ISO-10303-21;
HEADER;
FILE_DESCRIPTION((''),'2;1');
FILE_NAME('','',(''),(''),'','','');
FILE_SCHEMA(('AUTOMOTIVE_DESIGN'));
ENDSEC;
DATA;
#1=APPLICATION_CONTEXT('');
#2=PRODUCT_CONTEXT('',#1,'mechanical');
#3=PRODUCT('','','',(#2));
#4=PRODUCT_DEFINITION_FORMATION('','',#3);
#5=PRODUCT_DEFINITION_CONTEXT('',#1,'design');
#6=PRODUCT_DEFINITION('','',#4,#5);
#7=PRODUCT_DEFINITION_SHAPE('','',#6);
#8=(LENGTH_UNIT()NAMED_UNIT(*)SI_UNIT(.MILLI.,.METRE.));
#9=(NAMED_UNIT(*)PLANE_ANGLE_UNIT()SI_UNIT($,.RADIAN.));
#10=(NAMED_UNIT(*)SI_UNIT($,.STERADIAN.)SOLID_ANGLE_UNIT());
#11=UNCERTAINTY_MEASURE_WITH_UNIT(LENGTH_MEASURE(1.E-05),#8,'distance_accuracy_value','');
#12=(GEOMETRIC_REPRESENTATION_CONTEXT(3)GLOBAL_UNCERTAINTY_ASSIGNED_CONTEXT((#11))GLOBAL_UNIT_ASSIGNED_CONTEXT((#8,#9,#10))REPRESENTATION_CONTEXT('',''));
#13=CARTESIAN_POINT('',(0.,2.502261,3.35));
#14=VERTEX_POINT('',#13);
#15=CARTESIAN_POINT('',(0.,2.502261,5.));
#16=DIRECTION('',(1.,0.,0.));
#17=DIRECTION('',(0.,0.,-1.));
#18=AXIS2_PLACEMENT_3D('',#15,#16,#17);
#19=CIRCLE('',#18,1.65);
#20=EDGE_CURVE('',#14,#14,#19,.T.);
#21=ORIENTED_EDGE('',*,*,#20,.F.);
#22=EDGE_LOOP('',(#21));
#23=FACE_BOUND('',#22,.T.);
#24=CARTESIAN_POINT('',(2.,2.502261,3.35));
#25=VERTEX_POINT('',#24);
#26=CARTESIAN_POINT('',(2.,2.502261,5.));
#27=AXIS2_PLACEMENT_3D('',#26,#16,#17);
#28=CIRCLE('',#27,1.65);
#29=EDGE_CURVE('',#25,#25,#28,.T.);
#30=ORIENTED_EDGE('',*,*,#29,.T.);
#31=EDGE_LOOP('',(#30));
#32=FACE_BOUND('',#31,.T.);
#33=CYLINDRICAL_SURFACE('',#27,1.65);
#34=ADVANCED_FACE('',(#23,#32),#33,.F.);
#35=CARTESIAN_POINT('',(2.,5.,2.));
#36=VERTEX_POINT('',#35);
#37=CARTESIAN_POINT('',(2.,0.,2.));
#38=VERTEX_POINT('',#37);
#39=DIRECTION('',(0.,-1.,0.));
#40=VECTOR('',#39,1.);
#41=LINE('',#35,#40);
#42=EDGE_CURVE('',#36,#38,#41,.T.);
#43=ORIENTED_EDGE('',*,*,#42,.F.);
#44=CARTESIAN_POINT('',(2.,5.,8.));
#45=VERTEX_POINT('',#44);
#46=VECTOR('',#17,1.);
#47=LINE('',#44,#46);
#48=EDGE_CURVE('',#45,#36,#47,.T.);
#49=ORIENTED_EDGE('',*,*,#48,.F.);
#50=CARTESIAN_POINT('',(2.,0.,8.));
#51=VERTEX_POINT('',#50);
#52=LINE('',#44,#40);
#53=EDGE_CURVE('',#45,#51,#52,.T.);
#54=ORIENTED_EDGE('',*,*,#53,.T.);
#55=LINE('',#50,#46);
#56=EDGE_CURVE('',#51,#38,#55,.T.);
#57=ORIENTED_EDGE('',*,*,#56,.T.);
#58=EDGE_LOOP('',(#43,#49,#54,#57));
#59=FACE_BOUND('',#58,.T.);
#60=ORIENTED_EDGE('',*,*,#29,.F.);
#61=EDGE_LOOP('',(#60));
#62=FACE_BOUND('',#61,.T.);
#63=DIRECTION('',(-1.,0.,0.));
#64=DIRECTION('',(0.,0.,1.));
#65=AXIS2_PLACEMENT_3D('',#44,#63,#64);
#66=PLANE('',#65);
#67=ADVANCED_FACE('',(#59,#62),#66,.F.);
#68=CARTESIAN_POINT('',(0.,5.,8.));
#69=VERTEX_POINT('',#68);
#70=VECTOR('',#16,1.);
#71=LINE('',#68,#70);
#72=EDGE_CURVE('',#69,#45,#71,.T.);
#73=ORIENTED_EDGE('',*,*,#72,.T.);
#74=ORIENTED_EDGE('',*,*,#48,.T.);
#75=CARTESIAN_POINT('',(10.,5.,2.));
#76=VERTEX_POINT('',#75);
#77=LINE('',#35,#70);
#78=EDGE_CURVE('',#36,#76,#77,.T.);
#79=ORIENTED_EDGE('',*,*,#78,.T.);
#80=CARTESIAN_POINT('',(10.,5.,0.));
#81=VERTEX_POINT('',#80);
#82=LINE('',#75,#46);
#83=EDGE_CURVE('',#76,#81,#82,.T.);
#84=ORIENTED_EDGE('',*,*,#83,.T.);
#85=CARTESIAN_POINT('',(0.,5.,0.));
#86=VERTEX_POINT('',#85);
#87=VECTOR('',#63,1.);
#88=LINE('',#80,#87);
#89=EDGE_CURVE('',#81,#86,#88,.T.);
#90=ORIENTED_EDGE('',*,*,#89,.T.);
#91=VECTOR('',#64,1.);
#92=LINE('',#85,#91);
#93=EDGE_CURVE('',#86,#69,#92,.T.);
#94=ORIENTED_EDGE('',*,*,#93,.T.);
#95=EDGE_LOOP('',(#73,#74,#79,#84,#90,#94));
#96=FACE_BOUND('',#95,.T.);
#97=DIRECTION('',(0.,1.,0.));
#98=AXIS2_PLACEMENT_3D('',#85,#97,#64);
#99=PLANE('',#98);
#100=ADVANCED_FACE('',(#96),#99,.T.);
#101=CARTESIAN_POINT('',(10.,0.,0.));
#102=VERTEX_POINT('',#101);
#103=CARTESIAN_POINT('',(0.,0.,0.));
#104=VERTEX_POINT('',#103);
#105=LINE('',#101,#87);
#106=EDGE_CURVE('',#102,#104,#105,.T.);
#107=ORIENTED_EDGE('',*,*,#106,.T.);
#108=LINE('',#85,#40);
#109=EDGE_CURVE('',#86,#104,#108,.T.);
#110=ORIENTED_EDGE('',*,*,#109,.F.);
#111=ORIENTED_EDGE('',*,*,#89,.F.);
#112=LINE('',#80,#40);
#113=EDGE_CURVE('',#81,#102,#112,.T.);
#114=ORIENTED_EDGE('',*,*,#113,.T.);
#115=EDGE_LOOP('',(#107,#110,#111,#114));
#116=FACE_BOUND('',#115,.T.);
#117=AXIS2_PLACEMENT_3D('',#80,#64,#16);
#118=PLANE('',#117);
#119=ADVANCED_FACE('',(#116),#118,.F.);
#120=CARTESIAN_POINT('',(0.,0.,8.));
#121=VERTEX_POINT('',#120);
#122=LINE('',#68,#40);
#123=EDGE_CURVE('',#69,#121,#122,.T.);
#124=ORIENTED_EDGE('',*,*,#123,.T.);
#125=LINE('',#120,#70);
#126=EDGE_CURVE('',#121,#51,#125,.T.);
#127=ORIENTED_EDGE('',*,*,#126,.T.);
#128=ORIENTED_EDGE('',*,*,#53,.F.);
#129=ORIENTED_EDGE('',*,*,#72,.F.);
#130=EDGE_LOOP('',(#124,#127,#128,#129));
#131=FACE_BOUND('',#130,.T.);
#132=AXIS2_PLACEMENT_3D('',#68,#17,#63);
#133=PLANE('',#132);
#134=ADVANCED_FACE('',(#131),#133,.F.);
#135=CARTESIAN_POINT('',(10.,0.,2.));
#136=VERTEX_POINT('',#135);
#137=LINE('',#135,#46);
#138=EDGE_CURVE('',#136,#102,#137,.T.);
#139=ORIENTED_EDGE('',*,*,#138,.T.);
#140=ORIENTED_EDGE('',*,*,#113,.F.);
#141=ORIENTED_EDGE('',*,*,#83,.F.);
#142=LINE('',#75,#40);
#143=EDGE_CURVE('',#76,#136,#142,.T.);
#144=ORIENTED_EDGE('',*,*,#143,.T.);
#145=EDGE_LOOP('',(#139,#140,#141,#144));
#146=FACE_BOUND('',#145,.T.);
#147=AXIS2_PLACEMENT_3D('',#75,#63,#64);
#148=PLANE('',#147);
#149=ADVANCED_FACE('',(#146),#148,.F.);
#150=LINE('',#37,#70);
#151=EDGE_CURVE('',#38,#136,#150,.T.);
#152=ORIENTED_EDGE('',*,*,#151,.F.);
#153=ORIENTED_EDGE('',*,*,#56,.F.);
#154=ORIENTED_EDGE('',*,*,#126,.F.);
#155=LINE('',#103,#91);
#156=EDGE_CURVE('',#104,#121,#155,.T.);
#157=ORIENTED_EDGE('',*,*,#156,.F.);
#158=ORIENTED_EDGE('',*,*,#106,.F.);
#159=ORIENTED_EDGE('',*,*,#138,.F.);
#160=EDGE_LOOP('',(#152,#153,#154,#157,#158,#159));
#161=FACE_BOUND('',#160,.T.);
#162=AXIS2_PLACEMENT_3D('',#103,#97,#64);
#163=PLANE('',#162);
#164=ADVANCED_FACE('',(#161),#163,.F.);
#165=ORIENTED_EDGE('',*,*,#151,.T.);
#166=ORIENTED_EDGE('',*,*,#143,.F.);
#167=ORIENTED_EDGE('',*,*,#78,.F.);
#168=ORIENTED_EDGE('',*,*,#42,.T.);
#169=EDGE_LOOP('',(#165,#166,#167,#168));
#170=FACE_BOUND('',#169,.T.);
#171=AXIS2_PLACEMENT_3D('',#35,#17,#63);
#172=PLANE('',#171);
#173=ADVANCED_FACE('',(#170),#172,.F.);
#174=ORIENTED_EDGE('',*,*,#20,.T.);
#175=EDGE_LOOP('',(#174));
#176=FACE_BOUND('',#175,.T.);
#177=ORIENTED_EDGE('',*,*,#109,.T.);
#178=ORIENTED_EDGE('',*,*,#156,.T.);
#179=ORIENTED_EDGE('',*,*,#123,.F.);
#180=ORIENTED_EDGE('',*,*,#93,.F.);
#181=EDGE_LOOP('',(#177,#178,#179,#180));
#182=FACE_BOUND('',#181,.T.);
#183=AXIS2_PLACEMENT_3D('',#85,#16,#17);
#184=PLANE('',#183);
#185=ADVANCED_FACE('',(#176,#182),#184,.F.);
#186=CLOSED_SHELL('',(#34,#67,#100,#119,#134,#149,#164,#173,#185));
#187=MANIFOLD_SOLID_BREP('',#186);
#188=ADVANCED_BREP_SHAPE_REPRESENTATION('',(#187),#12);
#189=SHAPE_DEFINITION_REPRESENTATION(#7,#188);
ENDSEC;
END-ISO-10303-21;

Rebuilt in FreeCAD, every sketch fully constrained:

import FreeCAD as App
import Part
import Sketcher
Q = App.Units.Quantity

doc = App.newDocument("Part")
body = doc.addObject("PartDesign::Body", "Body")

# Sketch on XZ plane
sketch1 = body.newObject("Sketcher::SketchObject", "Sketch")
sketch1.AttachmentSupport = (doc.getObject("XZ_Plane"), [""])
sketch1.MapMode = "FlatFace"
sketch1.addGeometry([
    Part.LineSegment(App.Vector(0, 0, 0), App.Vector(0, 8, 0)),  # 0
    Part.LineSegment(App.Vector(0, 8, 0), App.Vector(2, 8, 0)),  # 1
    Part.LineSegment(App.Vector(2, 8, 0), App.Vector(2, 2, 0)),  # 2
    Part.LineSegment(App.Vector(2, 2, 0), App.Vector(10, 2, 0)),  # 3
    Part.LineSegment(App.Vector(10, 2, 0), App.Vector(10, 0, 0)),  # 4
    Part.LineSegment(App.Vector(10, 0, 0), App.Vector(0, 0, 0)),  # 5
], False)
sketch1.addConstraint([
    Sketcher.Constraint("Coincident", 0, 2, 1, 1),
    Sketcher.Constraint("Coincident", 1, 2, 2, 1),
    Sketcher.Constraint("Coincident", 2, 2, 3, 1),
    Sketcher.Constraint("Coincident", 3, 2, 4, 1),
    Sketcher.Constraint("Coincident", 4, 2, 5, 1),
    Sketcher.Constraint("Coincident", 5, 2, 0, 1),
    Sketcher.Constraint("Vertical", 0),
    Sketcher.Constraint("Horizontal", 1),
    Sketcher.Constraint("Vertical", 2),
    Sketcher.Constraint("Horizontal", 3),
    Sketcher.Constraint("Vertical", 4),
    Sketcher.Constraint("Horizontal", 5),
    Sketcher.Constraint("Coincident", 5, 2, -1, 1),
    Sketcher.Constraint("Equal", 3, 0),
    Sketcher.Constraint("Equal", 1, 4),
    Sketcher.Constraint("DistanceX", 1, 1, 1, 2, Q("2 mm")),
    Sketcher.Constraint("DistanceX", 3, 1, 3, 2, Q("8 mm")),
])
pad1 = body.newObject("PartDesign::Pad", "Pad")
pad1.Profile = sketch1
pad1.Length = 5
pad1.Reversed = True

# Sketch on YZ plane
sketch2 = body.newObject("Sketcher::SketchObject", "Sketch001")
sketch2.AttachmentSupport = (doc.getObject("YZ_Plane"), [""])
sketch2.MapMode = "FlatFace"
sketch2.AttachmentOffset = App.Placement(App.Vector(0, 0, 2), App.Rotation())
sketch2.addGeometry(Part.Circle(App.Vector(2.502261, 5, 0), App.Vector(0, 0, 1), 1.65), False)
sketch2.addConstraint([
    Sketcher.Constraint("Diameter", 0, Q("3.3 mm")),
    Sketcher.Constraint("DistanceY", -1, 1, 0, 3, Q("5 mm")),
    Sketcher.Constraint("DistanceX", -1, 1, 0, 3, Q("2.502261 mm")),
])
doc.recompute()
hole = body.newObject("PartDesign::Hole", "Hole")
hole.Profile = sketch2
hole.ThreadType = "None"
hole.Diameter = 3.3
hole.DepthType = "ThroughAll"

doc.recompute()
